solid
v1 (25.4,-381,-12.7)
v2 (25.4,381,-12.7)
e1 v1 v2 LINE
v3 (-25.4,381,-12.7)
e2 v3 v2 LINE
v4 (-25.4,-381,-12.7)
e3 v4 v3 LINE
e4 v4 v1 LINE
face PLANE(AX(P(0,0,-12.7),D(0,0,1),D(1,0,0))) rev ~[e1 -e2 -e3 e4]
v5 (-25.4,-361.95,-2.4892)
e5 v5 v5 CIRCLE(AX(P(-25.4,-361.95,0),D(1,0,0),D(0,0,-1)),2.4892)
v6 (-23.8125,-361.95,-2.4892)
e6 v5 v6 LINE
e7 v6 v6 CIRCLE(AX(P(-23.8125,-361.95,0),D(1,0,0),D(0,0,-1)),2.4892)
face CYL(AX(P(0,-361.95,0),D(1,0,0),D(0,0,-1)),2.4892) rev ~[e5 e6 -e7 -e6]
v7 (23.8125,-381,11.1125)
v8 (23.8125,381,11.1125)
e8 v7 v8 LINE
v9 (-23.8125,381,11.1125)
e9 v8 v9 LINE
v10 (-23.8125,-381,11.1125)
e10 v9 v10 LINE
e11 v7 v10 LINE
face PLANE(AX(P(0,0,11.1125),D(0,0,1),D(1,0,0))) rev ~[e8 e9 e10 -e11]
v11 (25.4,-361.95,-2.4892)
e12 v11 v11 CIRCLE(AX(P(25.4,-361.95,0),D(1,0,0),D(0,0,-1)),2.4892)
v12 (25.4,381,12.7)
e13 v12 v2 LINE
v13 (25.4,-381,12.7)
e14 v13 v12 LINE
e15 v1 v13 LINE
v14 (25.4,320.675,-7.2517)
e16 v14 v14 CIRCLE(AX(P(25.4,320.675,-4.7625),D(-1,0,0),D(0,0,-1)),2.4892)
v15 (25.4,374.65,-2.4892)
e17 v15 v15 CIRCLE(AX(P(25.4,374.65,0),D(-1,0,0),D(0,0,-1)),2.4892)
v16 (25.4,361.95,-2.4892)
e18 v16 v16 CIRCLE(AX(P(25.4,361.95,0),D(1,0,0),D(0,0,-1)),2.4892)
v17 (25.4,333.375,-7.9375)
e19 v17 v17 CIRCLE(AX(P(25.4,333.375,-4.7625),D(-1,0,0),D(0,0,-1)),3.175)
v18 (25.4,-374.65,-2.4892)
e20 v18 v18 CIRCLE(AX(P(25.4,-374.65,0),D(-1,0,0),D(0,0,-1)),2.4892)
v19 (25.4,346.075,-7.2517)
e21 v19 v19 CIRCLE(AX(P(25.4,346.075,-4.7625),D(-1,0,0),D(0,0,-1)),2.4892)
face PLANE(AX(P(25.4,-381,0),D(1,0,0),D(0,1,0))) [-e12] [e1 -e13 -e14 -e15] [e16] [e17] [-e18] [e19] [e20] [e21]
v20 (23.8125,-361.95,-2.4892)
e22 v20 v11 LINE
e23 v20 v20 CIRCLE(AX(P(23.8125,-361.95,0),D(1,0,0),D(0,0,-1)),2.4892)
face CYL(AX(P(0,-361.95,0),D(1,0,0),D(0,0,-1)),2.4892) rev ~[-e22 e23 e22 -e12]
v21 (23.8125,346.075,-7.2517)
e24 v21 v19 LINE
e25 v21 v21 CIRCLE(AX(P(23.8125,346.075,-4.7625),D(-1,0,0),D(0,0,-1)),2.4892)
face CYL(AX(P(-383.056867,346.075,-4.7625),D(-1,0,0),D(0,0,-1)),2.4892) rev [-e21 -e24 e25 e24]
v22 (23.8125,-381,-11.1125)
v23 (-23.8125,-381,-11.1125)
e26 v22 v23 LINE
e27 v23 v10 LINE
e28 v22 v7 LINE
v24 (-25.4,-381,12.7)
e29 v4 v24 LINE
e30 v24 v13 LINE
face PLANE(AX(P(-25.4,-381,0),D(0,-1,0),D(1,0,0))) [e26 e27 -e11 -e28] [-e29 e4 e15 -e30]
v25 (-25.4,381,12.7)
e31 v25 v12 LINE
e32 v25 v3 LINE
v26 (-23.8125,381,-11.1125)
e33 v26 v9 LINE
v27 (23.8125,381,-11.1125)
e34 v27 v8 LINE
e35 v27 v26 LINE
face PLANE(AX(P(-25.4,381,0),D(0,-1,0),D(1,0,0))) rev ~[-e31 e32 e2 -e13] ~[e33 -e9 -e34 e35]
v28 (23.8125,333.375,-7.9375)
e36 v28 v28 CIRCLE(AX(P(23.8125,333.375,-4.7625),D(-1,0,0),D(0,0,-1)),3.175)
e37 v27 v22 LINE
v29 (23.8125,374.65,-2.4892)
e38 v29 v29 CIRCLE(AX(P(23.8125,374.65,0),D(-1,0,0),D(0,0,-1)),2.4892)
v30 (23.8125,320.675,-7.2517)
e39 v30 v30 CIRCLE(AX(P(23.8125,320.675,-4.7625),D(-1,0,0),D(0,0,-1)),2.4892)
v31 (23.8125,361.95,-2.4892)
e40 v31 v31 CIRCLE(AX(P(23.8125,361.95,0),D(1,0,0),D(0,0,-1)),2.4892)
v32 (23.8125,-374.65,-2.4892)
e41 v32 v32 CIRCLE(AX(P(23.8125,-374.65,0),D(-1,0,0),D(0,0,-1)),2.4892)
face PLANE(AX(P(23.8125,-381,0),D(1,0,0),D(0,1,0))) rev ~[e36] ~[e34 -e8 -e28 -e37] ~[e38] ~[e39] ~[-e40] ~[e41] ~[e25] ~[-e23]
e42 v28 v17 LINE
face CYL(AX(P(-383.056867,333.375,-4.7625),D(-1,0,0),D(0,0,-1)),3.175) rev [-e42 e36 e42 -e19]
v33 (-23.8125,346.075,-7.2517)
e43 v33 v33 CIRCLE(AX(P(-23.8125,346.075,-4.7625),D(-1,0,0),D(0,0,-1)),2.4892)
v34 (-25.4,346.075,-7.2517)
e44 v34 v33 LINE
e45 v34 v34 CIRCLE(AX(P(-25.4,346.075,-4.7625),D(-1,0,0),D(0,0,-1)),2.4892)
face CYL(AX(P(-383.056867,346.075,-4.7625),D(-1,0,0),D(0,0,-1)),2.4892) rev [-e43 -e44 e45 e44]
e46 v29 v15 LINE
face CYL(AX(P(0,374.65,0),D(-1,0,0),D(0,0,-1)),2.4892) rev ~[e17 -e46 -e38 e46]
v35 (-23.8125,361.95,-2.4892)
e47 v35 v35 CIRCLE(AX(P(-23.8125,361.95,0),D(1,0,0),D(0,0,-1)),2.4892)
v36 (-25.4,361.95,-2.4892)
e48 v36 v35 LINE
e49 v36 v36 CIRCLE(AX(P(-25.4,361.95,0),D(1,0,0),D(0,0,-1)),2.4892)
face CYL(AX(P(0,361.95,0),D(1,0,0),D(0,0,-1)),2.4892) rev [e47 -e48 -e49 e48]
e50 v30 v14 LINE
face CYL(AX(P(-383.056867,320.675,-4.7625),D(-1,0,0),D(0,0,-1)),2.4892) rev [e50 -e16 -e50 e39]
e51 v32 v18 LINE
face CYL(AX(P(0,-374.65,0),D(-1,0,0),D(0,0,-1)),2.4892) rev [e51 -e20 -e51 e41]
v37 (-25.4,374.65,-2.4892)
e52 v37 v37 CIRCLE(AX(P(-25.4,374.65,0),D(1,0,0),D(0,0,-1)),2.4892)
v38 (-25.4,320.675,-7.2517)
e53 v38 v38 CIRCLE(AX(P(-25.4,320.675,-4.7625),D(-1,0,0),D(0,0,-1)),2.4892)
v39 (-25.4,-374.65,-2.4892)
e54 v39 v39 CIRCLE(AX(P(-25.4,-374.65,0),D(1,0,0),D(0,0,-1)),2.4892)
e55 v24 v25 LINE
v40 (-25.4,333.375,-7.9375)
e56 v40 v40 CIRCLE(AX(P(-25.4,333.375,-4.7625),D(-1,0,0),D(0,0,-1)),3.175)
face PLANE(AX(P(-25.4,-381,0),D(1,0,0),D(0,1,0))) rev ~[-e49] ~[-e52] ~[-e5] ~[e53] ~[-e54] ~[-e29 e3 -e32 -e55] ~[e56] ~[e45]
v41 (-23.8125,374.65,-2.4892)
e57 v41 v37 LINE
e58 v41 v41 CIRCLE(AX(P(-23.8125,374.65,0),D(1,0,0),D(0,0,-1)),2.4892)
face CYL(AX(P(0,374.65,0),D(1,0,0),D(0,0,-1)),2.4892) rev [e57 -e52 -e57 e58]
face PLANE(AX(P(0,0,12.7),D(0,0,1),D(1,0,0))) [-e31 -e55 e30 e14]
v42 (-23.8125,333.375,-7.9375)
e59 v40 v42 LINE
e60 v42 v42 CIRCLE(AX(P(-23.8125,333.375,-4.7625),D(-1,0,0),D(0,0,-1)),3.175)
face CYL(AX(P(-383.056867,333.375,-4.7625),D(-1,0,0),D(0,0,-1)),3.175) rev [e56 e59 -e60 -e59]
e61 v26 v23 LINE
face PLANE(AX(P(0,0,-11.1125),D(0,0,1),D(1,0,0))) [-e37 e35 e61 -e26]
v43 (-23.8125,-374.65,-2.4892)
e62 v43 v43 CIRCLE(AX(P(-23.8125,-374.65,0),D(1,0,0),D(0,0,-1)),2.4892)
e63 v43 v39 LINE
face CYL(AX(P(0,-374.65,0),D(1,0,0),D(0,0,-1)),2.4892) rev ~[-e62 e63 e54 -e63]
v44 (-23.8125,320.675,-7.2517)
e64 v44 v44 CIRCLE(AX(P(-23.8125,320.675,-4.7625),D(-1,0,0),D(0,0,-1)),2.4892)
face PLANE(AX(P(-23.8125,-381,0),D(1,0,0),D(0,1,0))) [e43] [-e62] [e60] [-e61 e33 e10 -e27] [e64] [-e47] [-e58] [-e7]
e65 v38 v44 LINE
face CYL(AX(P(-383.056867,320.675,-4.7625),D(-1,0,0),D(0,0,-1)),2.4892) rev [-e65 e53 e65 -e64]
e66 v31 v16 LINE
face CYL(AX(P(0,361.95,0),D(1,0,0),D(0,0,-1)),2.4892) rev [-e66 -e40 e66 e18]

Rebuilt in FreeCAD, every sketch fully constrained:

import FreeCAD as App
import Part
import Sketcher
from FreeCAD import Vector
Q = App.Units.Quantity


def faces_at(feature, points):
    """Names of the faces that lie closest to the given points."""
    faces = feature.Shape.Faces
    near = lambda p: min(range(len(faces)), key=lambda i: faces[i].distToShape(Part.Vertex(*p))[0])
    return sorted({f"Face{near(p) + 1}" for p in points})

doc = App.newDocument("Part")
body = doc.addObject("PartDesign::Body", "Body")

# Sketch on XY plane
sketch1 = body.newObject("Sketcher::SketchObject", "Sketch")
sketch1.AttachmentSupport = (doc.getObject("XY_Plane"), [""])
sketch1.MapMode = "FlatFace"
sketch1.addGeometry([
    Part.LineSegment(Vector(-25, 381, 0), Vector(-25, -381, 0)),
    Part.LineSegment(Vector(-25, -381, 0), Vector(25, -381, 0)),
    Part.LineSegment(Vector(25, -381, 0), Vector(25, 381, 0)),
    Part.LineSegment(Vector(25, 381, 0), Vector(-25, 381, 0)),
], False)
sketch1.addConstraint([
    Sketcher.Constraint("Coincident", 0, 2, 1, 1),
    Sketcher.Constraint("Coincident", 1, 2, 2, 1),
    Sketcher.Constraint("Coincident", 2, 2, 3, 1),
    Sketcher.Constraint("Coincident", 3, 2, 0, 1),
    Sketcher.Constraint("Vertical", 0),
    Sketcher.Constraint("Horizontal", 1),
    Sketcher.Constraint("Vertical", 2),
    Sketcher.Constraint("Horizontal", 3),
    Sketcher.Constraint("Symmetric", 0, 2, 2, 2, -1, 1),
    Sketcher.Constraint("DistanceX", 1, 1, 1, 2, Q("2 in")),
    Sketcher.Constraint("DistanceY", 0, 2, 0, 1, Q("30 in")),
])
pad1 = body.newObject("PartDesign::Pad", "Pad")
pad1.Profile = sketch1
pad1.Length = Q("1 in")
pad1.Midplane = True
doc.recompute()

thickness = body.newObject("PartDesign::Thickness", "Thickness")
thickness.Base = (pad1, faces_at(pad1, [(0, -381, 0), (0, 381, 0)]))
thickness.Value = Q("0.0625 in")
thickness.Reversed = True
thickness.Join = "Intersection"

# Sketch on YZ plane
sketch2 = body.newObject("Sketcher::SketchObject", "Sketch001")
sketch2.AttachmentSupport = (doc.getObject("YZ_Plane"), [""])
sketch2.MapMode = "FlatFace"
sketch2.addGeometry([
    Part.Circle(Vector(-374.6, 0, 0), Vector(0, 0, 1), 2.5),
    Part.Circle(Vector(-361.9, 0, 0), Vector(0, 0, 1), 2.5),
], False)
sketch2.addConstraint([
    Sketcher.Constraint("Equal", 0, 1),
    Sketcher.Constraint("PointOnObject", 0, 3, -1),
    Sketcher.Constraint("PointOnObject", 1, 3, -1),
    Sketcher.Constraint("Diameter", 0, Q("0.196 in")),
    Sketcher.Constraint("DistanceX", 0, 3, 1, 3, Q("0.5 in")),
    Sketcher.Constraint("DistanceX", 0, 3, -1, 1, Q("14.75 in")),
])
pocket1 = body.newObject("PartDesign::Pocket", "Pocket")
pocket1.Profile = sketch2
pocket1.Length = 766.113735
pocket1.Midplane = True

# Sketch on YZ plane
sketch3 = body.newObject("Sketcher::SketchObject", "Sketch002")
sketch3.AttachmentSupport = (doc.getObject("YZ_Plane"), [""])
sketch3.MapMode = "FlatFace"
sketch3.addGeometry([
    Part.Circle(Vector(333.4, -4.8, 0), Vector(0, 0, 1), 3.2),
    Part.Circle(Vector(346.1, -4.8, 0), Vector(0, 0, 1), 2.5),
    Part.Circle(Vector(320.7, -4.8, 0), Vector(0, 0, 1), 2.5),
], False)
sketch3.addConstraint([
    Sketcher.Constraint("Equal", 1, 2),
    Sketcher.Constraint("Horizontal", 0, 3, 1, 3),
    Sketcher.Constraint("Horizontal", 1, 3, 2, 3),
    Sketcher.Constraint("Diameter", 0, Q("0.25 in")),
    Sketcher.Constraint("Diameter", 1, Q("0.196 in")),
    Sketcher.Constraint("DistanceX", 2, 3, 1, 3, Q("1 in")),
    Sketcher.Constraint("DistanceX", 0, 3, 1, 3, Q("0.5 in")),
    Sketcher.Constraint("DistanceX", -1, 1, 0, 3, Q("13.125 in")),
    Sketcher.Constraint("DistanceY", 0, 3, -1, 1, Q("0.1875 in")),
])
pocket2 = body.newObject("PartDesign::Pocket", "Pocket001")
pocket2.Profile = sketch3
pocket2.Type = "ThroughAll"
pocket2.Midplane = True
doc.recompute()

mirrored = body.newObject("PartDesign::Mirrored", "Mirrored")
mirrored.Originals = [pocket1]
mirrored.MirrorPlane = (doc.getObject("XZ_Plane"), [""])
body.Tip = mirrored

doc.recompute()
